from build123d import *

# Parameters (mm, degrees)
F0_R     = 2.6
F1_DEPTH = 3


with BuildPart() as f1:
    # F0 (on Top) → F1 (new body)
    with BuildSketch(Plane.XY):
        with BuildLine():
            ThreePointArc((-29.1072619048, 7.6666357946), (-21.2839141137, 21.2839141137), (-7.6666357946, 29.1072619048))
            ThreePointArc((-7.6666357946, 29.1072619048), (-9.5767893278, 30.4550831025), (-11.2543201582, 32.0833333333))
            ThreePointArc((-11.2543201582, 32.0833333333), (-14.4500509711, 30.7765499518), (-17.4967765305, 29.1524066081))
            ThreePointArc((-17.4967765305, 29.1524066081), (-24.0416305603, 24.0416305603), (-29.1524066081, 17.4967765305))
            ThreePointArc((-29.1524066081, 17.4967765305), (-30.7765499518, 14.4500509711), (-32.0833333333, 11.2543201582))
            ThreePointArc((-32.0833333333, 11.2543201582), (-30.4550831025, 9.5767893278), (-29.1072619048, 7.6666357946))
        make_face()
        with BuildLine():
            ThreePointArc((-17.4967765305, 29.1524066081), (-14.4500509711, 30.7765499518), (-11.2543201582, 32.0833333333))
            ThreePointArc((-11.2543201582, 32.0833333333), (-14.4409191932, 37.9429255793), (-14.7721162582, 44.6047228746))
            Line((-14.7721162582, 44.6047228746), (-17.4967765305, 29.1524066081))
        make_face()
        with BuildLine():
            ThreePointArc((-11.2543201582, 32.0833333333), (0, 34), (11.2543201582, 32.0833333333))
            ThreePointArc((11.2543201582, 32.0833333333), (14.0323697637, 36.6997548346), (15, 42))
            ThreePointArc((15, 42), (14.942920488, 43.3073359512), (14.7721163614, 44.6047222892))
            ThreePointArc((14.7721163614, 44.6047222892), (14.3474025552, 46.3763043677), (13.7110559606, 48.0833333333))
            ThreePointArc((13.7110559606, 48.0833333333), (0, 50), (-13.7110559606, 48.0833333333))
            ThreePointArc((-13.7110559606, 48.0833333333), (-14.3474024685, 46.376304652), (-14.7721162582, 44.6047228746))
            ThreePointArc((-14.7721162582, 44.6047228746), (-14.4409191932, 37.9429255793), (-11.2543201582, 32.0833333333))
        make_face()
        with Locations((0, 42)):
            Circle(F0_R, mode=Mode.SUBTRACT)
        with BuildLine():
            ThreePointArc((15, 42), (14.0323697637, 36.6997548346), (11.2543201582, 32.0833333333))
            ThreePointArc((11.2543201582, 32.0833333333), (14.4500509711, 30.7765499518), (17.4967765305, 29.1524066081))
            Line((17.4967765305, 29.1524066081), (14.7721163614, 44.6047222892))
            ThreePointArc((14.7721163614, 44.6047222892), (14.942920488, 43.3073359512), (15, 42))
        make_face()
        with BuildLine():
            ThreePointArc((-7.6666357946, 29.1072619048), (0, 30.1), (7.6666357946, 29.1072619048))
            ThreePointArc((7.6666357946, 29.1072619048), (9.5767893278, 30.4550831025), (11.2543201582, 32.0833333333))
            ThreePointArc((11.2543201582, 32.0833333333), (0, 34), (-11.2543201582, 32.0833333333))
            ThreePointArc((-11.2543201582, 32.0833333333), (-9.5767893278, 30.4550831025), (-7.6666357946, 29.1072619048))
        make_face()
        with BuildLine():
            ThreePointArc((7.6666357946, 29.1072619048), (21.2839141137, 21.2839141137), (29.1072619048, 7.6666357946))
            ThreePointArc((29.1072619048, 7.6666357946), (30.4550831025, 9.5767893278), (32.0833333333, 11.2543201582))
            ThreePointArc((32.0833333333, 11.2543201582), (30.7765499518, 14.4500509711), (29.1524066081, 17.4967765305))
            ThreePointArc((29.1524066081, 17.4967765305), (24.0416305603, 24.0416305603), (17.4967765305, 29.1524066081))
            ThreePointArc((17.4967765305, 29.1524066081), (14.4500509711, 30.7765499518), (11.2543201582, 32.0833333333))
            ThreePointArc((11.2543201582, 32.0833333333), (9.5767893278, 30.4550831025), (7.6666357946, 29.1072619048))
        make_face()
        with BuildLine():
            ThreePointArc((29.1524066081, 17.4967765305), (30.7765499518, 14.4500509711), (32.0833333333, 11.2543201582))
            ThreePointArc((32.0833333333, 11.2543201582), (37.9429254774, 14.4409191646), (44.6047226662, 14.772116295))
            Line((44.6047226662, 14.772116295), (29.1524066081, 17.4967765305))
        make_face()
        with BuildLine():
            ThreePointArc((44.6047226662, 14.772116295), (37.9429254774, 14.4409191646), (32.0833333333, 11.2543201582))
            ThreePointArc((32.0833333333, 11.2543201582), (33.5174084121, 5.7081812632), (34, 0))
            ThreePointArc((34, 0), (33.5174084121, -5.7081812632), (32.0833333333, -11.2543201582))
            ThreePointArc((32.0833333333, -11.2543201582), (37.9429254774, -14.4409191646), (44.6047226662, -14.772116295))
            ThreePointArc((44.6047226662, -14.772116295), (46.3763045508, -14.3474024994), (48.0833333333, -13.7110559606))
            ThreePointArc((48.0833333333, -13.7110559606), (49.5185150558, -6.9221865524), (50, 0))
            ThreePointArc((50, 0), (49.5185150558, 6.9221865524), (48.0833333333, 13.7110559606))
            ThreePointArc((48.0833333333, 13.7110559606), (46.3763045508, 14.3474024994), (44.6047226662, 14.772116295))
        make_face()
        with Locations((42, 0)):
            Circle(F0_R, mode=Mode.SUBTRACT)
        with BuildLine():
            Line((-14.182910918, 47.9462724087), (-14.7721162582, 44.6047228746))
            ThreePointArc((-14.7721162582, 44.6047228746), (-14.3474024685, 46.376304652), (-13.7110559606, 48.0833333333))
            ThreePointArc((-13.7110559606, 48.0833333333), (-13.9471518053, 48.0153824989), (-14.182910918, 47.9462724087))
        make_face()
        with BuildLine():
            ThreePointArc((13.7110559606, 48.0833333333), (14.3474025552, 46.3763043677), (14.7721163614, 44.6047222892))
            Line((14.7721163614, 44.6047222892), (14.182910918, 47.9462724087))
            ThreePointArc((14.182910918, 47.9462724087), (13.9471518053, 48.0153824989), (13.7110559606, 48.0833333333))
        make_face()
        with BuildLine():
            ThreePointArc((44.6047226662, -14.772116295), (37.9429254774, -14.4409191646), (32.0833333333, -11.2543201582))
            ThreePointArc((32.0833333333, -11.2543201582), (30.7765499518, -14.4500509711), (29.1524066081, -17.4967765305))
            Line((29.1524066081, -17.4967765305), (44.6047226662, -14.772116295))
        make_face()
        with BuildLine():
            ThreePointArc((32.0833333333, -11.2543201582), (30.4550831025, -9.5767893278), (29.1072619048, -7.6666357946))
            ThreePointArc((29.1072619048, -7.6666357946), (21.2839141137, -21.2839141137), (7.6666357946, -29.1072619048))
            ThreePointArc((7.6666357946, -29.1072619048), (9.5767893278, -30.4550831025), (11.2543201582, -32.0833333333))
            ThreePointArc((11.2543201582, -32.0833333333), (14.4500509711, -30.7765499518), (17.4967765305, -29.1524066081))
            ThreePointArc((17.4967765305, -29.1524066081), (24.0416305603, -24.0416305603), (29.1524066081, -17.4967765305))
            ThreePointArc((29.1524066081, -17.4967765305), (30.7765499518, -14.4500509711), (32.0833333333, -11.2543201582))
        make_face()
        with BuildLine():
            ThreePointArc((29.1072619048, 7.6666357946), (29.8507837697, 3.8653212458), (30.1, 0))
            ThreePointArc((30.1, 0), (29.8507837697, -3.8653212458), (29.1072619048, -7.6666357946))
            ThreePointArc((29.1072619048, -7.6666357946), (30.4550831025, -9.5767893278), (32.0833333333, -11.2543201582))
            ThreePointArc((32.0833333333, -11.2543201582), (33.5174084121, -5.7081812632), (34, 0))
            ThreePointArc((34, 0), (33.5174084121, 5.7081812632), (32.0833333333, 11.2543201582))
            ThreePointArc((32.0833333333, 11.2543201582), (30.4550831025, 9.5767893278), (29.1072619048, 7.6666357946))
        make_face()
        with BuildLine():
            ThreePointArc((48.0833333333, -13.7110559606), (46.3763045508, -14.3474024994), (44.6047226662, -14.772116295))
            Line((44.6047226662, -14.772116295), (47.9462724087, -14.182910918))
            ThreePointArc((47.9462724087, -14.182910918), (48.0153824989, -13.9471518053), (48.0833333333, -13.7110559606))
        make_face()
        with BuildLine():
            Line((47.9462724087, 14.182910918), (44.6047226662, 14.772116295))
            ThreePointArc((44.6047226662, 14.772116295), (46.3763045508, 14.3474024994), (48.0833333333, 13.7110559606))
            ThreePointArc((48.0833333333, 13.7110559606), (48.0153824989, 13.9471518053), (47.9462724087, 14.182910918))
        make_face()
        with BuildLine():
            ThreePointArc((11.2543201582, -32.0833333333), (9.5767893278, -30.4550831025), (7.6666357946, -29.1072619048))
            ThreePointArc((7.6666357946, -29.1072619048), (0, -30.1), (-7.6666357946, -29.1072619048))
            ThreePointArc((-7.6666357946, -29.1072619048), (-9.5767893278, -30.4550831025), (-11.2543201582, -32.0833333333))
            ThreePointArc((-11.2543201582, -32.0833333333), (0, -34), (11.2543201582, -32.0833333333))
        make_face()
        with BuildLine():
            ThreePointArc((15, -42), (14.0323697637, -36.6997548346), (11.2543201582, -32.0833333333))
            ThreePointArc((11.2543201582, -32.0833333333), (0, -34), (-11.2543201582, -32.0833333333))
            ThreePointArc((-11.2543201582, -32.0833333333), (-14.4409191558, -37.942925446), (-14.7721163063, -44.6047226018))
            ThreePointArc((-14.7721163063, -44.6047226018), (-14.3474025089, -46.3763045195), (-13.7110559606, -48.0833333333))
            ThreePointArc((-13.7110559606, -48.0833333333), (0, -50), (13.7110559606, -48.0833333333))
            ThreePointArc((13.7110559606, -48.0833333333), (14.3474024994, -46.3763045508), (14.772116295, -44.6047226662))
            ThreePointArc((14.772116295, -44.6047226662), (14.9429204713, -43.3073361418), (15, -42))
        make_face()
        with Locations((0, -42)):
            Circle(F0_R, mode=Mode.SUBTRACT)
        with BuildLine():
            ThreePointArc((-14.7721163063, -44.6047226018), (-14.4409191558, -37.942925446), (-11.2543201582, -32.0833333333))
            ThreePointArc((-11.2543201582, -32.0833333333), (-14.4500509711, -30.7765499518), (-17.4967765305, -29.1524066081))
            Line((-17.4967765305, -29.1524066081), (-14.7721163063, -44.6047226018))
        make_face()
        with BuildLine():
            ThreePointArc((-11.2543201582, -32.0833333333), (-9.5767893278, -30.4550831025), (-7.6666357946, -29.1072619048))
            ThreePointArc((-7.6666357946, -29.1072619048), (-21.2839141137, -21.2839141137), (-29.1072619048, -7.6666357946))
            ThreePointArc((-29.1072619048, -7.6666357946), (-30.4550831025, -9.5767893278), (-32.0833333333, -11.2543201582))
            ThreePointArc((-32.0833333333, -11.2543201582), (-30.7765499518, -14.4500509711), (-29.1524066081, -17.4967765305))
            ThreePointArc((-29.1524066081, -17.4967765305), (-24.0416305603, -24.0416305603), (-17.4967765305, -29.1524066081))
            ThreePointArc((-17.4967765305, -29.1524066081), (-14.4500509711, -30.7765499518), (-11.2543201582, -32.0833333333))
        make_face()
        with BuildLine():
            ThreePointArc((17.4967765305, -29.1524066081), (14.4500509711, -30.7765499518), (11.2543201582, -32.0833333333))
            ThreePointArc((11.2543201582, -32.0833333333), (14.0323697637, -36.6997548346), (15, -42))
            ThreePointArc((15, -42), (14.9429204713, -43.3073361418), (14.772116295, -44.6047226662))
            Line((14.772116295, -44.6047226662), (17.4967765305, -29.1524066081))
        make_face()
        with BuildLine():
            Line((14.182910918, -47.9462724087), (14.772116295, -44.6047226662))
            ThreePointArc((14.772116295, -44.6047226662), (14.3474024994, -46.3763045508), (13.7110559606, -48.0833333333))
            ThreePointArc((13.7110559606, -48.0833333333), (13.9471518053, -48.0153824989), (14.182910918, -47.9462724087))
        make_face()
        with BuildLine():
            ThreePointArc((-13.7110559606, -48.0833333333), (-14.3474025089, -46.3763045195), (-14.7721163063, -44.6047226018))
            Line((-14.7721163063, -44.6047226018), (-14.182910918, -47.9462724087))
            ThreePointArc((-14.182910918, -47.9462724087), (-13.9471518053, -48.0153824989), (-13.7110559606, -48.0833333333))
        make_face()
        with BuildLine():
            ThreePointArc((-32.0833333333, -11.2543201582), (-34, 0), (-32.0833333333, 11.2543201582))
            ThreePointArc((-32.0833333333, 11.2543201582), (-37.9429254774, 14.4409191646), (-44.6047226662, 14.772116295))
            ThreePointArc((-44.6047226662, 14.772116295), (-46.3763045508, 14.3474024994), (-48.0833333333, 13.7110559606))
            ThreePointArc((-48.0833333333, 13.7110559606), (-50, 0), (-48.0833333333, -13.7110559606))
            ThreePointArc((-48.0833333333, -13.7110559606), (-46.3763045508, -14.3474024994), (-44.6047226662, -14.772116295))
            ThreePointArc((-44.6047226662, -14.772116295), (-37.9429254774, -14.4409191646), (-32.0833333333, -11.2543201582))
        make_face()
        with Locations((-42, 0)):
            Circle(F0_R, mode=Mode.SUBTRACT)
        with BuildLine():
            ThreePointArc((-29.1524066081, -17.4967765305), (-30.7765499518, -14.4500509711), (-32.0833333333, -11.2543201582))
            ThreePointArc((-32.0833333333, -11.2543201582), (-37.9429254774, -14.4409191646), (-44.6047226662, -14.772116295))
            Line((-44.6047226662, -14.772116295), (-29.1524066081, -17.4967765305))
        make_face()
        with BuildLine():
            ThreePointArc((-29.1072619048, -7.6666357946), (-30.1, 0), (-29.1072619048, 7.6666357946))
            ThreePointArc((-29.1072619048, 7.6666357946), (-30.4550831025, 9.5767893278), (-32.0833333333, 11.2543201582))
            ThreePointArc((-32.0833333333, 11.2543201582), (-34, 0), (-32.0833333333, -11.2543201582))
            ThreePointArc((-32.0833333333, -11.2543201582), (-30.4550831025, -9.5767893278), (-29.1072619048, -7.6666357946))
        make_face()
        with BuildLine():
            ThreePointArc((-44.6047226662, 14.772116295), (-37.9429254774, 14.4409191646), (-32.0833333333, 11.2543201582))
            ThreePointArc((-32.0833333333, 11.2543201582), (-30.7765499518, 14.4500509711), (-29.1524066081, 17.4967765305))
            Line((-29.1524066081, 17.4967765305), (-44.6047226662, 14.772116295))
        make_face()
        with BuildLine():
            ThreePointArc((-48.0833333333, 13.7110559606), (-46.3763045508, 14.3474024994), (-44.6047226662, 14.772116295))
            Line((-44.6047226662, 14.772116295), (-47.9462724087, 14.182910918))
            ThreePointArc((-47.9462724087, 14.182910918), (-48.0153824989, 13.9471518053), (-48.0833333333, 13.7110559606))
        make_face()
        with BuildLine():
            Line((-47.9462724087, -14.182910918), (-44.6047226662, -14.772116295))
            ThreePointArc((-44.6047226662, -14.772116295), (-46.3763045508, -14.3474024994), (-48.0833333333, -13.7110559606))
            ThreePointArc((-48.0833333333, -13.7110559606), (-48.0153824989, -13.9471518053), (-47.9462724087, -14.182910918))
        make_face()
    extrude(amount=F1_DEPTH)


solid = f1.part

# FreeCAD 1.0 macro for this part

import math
import FreeCAD as App
import Part
import Sketcher
Q = App.Units.Quantity

doc = App.newDocument("Part")
body = doc.addObject("PartDesign::Body", "Body")

# Sketch on XY plane
sketch1 = body.newObject("Sketcher::SketchObject", "Sketch")
sketch1.AttachmentSupport = (doc.getObject("XY_Plane"), [""])
sketch1.MapMode = "FlatFace"
sketch1.addGeometry([
    Part.ArcOfCircle(Part.Circle(App.Vector(0, 0, 0), App.Vector(0, 0, 1), 50), math.radians(164), math.radians(196)),  # 0
    Part.ArcOfCircle(Part.Circle(App.Vector(0, 0, 0), App.Vector(0, 0, 1), 50), math.radians(-164.08), math.radians(-163.52)),  # 1
    Part.LineSegment(App.Vector(-47.95, -14.18, 0), App.Vector(-44.6, -14.77, 0)),  # 2
    Part.LineSegment(App.Vector(-44.6, -14.77, 0), App.Vector(-29.15, -17.5, 0)),  # 3
    Part.ArcOfCircle(Part.Circle(App.Vector(0, 0, 0), App.Vector(0, 0, 1), 34), math.radians(-149), math.radians(-121)),  # 4
    Part.LineSegment(App.Vector(-17.5, -29.15, 0), App.Vector(-14.77, -44.6, 0)),  # 5
    Part.LineSegment(App.Vector(-14.77, -44.6, 0), App.Vector(-14.18, -47.95, 0)),  # 6
    Part.ArcOfCircle(Part.Circle(App.Vector(0, 0, 0), App.Vector(0, 0, 1), 50), math.radians(-106.48), math.radians(-105.92)),  # 7
    Part.ArcOfCircle(Part.Circle(App.Vector(0, 0, 0), App.Vector(0, 0, 1), 50), math.radians(-106), math.radians(-74)),  # 8
    Part.ArcOfCircle(Part.Circle(App.Vector(0, 0, 0), App.Vector(0, 0, 1), 50), math.radians(-74.08), math.radians(-73.52)),  # 9
    Part.LineSegment(App.Vector(14.18, -47.95, 0), App.Vector(14.77, -44.6, 0)),  # 10
    Part.LineSegment(App.Vector(14.77, -44.6, 0), App.Vector(17.5, -29.15, 0)),  # 11
    Part.ArcOfCircle(Part.Circle(App.Vector(0, 0, 0), App.Vector(0, 0, 1), 34), math.radians(-59), math.radians(-31)),  # 12
    Part.LineSegment(App.Vector(29.15, -17.5, 0), App.Vector(44.6, -14.77, 0)),  # 13
    Part.LineSegment(App.Vector(44.6, -14.77, 0), App.Vector(47.95, -14.18, 0)),  # 14
    Part.ArcOfCircle(Part.Circle(App.Vector(0, 0, 0), App.Vector(0, 0, 1), 50), math.radians(-16.48), math.radians(-15.92)),  # 15
    Part.ArcOfCircle(Part.Circle(App.Vector(0, 0, 0), App.Vector(0, 0, 1), 50), math.radians(-15.92), math.radians(0)),  # 16
    Part.ArcOfCircle(Part.Circle(App.Vector(0, 0, 0), App.Vector(0, 0, 1), 50), math.radians(0), math.radians(15.92)),  # 17
    Part.ArcOfCircle(Part.Circle(App.Vector(0, 0, 0), App.Vector(0, 0, 1), 50), math.radians(15.92), math.radians(16.48)),  # 18
    Part.LineSegment(App.Vector(47.95, 14.18, 0), App.Vector(44.6, 14.77, 0)),  # 19
    Part.LineSegment(App.Vector(44.6, 14.77, 0), App.Vector(29.15, 17.5, 0)),  # 20
    Part.ArcOfCircle(Part.Circle(App.Vector(0, 0, 0), App.Vector(0, 0, 1), 34), math.radians(31), math.radians(59)),  # 21
    Part.LineSegment(App.Vector(17.5, 29.15, 0), App.Vector(14.77, 44.6, 0)),  # 22
    Part.LineSegment(App.Vector(14.77, 44.6, 0), App.Vector(14.18, 47.95, 0)),  # 23
    Part.ArcOfCircle(Part.Circle(App.Vector(0, 0, 0), App.Vector(0, 0, 1), 50), math.radians(73.52), math.radians(74.08)),  # 24
    Part.ArcOfCircle(Part.Circle(App.Vector(0, 0, 0), App.Vector(0, 0, 1), 50), math.radians(74), math.radians(106)),  # 25
    Part.ArcOfCircle(Part.Circle(App.Vector(0, 0, 0), App.Vector(0, 0, 1), 50), math.radians(105.92), math.radians(106.48)),  # 26
    Part.LineSegment(App.Vector(-14.18, 47.95, 0), App.Vector(-14.77, 44.6, 0)),  # 27
    Part.LineSegment(App.Vector(-14.77, 44.6, 0), App.Vector(-17.5, 29.15, 0)),  # 28
    Part.ArcOfCircle(Part.Circle(App.Vector(0, 0, 0), App.Vector(0, 0, 1), 34), math.radians(121), math.radians(149)),  # 29
    Part.LineSegment(App.Vector(-29.15, 17.5, 0), App.Vector(-44.6, 14.77, 0)),  # 30
    Part.LineSegment(App.Vector(-44.6, 14.77, 0), App.Vector(-47.95, 14.18, 0)),  # 31
    Part.ArcOfCircle(Part.Circle(App.Vector(0, 0, 0), App.Vector(0, 0, 1), 50), math.radians(163.52), math.radians(164.08)),  # 32
    Part.Circle(App.Vector(0, -42, 0), App.Vector(0, 0, 1), 2.6),  # 33
    Part.Circle(App.Vector(-42, 0, 0), App.Vector(0, 0, 1), 2.6),  # 34
    Part.ArcOfCircle(Part.Circle(App.Vector(0, 0, 0), App.Vector(0, 0, 1), 30.1), math.radians(-165), math.radians(-105)),  # 35
    Part.ArcOfCircle(Part.Circle(App.Vector(0, 0, 0), App.Vector(0, 0, 1), 30.1), math.radians(165), math.radians(195)),  # 36
    Part.ArcOfCircle(Part.Circle(App.Vector(0, 0, 0), App.Vector(0, 0, 1), 30.1), math.radians(105), math.radians(165)),  # 37
    Part.ArcOfCircle(Part.Circle(App.Vector(0, 0, 0), App.Vector(0, 0, 1), 30.1), math.radians(75), math.radians(105)),  # 38
    Part.ArcOfCircle(Part.Circle(App.Vector(0, 0, 0), App.Vector(0, 0, 1), 30.1), math.radians(15), math.radians(75)),  # 39
    Part.ArcOfCircle(Part.Circle(App.Vector(0, 0, 0), App.Vector(0, 0, 1), 30.1), math.radians(0), math.radians(14.76)),  # 40
    Part.ArcOfCircle(Part.Circle(App.Vector(0, 0, 0), App.Vector(0, 0, 1), 30.1), math.radians(-14.76), math.radians(0)),  # 41
    Part.ArcOfCircle(Part.Circle(App.Vector(0, 0, 0), App.Vector(0, 0, 1), 30.1), math.radians(-75), math.radians(-15)),  # 42
    Part.ArcOfCircle(Part.Circle(App.Vector(0, 0, 0), App.Vector(0, 0, 1), 30.1), math.radians(-105), math.radians(-75)),  # 43
    Part.Circle(App.Vector(42, 0, 0), App.Vector(0, 0, 1), 2.6),  # 44
    Part.Circle(App.Vector(0, 42, 0), App.Vector(0, 0, 1), 2.6),  # 45
], False)
sketch1.addConstraint([
    Sketcher.Constraint("Tangent", 0, 2, 1, 1),
    Sketcher.Constraint("Coincident", 1, 2, 2, 1),
    Sketcher.Constraint("Coincident", 2, 2, 3, 1),
    Sketcher.Constraint("Coincident", 3, 2, 4, 1),
    Sketcher.Constraint("Coincident", 4, 2, 5, 1),
    Sketcher.Constraint("Coincident", 5, 2, 6, 1),
    Sketcher.Constraint("Coincident", 6, 2, 7, 1),
    Sketcher.Constraint("Tangent", 7, 2, 8, 1),
    Sketcher.Constraint("Tangent", 8, 2, 9, 1),
    Sketcher.Constraint("Coincident", 9, 2, 10, 1),
    Sketcher.Constraint("Coincident", 10, 2, 11, 1),
    Sketcher.Constraint("Coincident", 11, 2, 12, 1),
    Sketcher.Constraint("Coincident", 12, 2, 13, 1),
    Sketcher.Constraint("Coincident", 13, 2, 14, 1),
    Sketcher.Constraint("Coincident", 14, 2, 15, 1),
    Sketcher.Constraint("Tangent", 15, 2, 16, 1),
    Sketcher.Constraint("Tangent", 16, 2, 17, 1),
    Sketcher.Constraint("Tangent", 17, 2, 18, 1),
    Sketcher.Constraint("Coincident", 18, 2, 19, 1),
    Sketcher.Constraint("Coincident", 19, 2, 20, 1),
    Sketcher.Constraint("Coincident", 20, 2, 21, 1),
    Sketcher.Constraint("Coincident", 21, 2, 22, 1),
    Sketcher.Constraint("Coincident", 22, 2, 23, 1),
    Sketcher.Constraint("Coincident", 23, 2, 24, 1),
    Sketcher.Constraint("Tangent", 24, 2, 25, 1),
    Sketcher.Constraint("Tangent", 25, 2, 26, 1),
    Sketcher.Constraint("Coincident", 26, 2, 27, 1),
    Sketcher.Constraint("Coincident", 27, 2, 28, 1),
    Sketcher.Constraint("Coincident", 28, 2, 29, 1),
    Sketcher.Constraint("Coincident", 29, 2, 30, 1),
    Sketcher.Constraint("Coincident", 30, 2, 31, 1),
    Sketcher.Constraint("Coincident", 31, 2, 32, 1),
    Sketcher.Constraint("Tangent", 32, 2, 0, 1),
    Sketcher.Constraint("Tangent", 35, 1, 36, 2),
    Sketcher.Constraint("Tangent", 36, 1, 37, 2),
    Sketcher.Constraint("Tangent", 37, 1, 38, 2),
    Sketcher.Constraint("Tangent", 38, 1, 39, 2),
    Sketcher.Constraint("Tangent", 39, 1, 40, 2),
    Sketcher.Constraint("Tangent", 40, 1, 41, 2),
    Sketcher.Constraint("Tangent", 41, 1, 42, 2),
    Sketcher.Constraint("Tangent", 42, 1, 43, 2),
    Sketcher.Constraint("Tangent", 43, 1, 35, 2),
    Sketcher.Constraint("Coincident", 0, 3, -1, 1),
    Sketcher.Constraint("Coincident", 4, 3, -1, 1),
    Sketcher.Constraint("Coincident", 7, 3, -1, 1),
    Sketcher.Constraint("Coincident", 9, 3, -1, 1),
    Sketcher.Constraint("Coincident", 12, 3, -1, 1),
    Sketcher.Constraint("Coincident", 15, 3, -1, 1),
    Sketcher.Constraint("Coincident", 17, 3, -1, 1),
    Sketcher.Constraint("Coincident", 21, 3, -1, 1),
    Sketcher.Constraint("Coincident", 24, 3, -1, 1),
    Sketcher.Constraint("Coincident", 26, 3, -1, 1),
    Sketcher.Constraint("Coincident", 29, 3, -1, 1),
    Sketcher.Constraint("Coincident", 35, 3, -1, 1),
    Sketcher.Constraint("Coincident", 37, 3, -1, 1),
    Sketcher.Constraint("Coincident", 39, 3, -1, 1),
    Sketcher.Constraint("Coincident", 41, 3, -1, 1),
    Sketcher.Constraint("Equal", 0, 1),
    Sketcher.Constraint("Equal", 1, 7),
    Sketcher.Constraint("Equal", 4, 12),
    Sketcher.Constraint("Equal", 9, 15),
    Sketcher.Constraint("Equal", 17, 18),
    Sketcher.Constraint("Equal", 12, 21),
    Sketcher.Constraint("Equal", 18, 24),
    Sketcher.Constraint("Equal", 21, 29),
    Sketcher.Constraint("Equal", 26, 32),
    Sketcher.Constraint("Equal", 33, 34),
    Sketcher.Constraint("Equal", 34, 44),
    Sketcher.Constraint("Equal", 44, 45),
    Sketcher.Constraint("Symmetric", 34, 3, 44, 3, -1, 1),
    Sketcher.Constraint("Symmetric", 33, 3, 45, 3, -1, 1),
    Sketcher.Constraint("Symmetric", 2, 2, 19, 2, -1, 1),
    Sketcher.Constraint("Symmetric", 5, 2, 22, 2, -1, 1),
    Sketcher.Constraint("Symmetric", 10, 2, 27, 2, -1, 1),
    Sketcher.Constraint("Symmetric", 13, 2, 30, 2, -1, 1),
    Sketcher.Constraint("Symmetric", 5, 2, 10, 2, -2),
    Sketcher.Constraint("Symmetric", 2, 2, 13, 2, -2),
    Sketcher.Constraint("PointOnObject", 33, 3, -2),
    Sketcher.Constraint("PointOnObject", 34, 3, -1),
    Sketcher.Constraint("PointOnObject", 16, 2, -1),
    Sketcher.Constraint("PointOnObject", 40, 1, -1),
    Sketcher.Constraint("Parallel", 2, 3),
    Sketcher.Constraint("Parallel", 5, 6),
    Sketcher.Constraint("Perpendicular", 3, 10),
    Sketcher.Constraint("Parallel", 10, 11),
    Sketcher.Constraint("Perpendicular", 6, 13),
    Sketcher.Constraint("Parallel", 13, 14),
    Sketcher.Constraint("Perpendicular", 11, 19),
    Sketcher.Constraint("Parallel", 19, 20),
    Sketcher.Constraint("Perpendicular", 14, 22),
    Sketcher.Constraint("Parallel", 22, 23),
    Sketcher.Constraint("Perpendicular", 20, 27),
    Sketcher.Constraint("Parallel", 27, 28),
    Sketcher.Constraint("Perpendicular", 23, 30),
    Sketcher.Constraint("Parallel", 30, 31),
    Sketcher.Constraint("Horizontal", 7, 2, 8, 2),
    Sketcher.Constraint("Horizontal", 6, 2, 9, 2),
    Sketcher.Constraint("Horizontal", 0, 2, 15, 2),
    Sketcher.Constraint("Horizontal", 24, 2, 25, 2),
    Sketcher.Constraint("Horizontal", 17, 2, 32, 2),
    Sketcher.Constraint("Horizontal", 37, 1, 38, 1),
    Sketcher.Constraint("Horizontal", 36, 1, 39, 1),
    Sketcher.Constraint("Horizontal", 35, 1, 41, 1),
    Sketcher.Constraint("Horizontal", 42, 1, 43, 1),
    Sketcher.Constraint("Vertical", 15, 2, 17, 2),
    Sketcher.Constraint("Vertical", 8, 2, 24, 2),
    Sketcher.Constraint("Vertical", 35, 1, 36, 1),
    Sketcher.Constraint("Vertical", 38, 1, 42, 1),
    Sketcher.Constraint("Equal", 3, 5),
    Sketcher.Constraint("Equal", 2, 6),
    Sketcher.Constraint("Radius", 0, 50.0),
    Sketcher.Constraint("Radius", 4, 34.0),
    Sketcher.Constraint("Diameter", 33, 5.2),
    Sketcher.Constraint("Radius", 35, 30.1),
    Sketcher.Constraint("Angle", 2, Q("-10 deg")),
    Sketcher.Constraint("DistanceY", 33, 3, -1, 1, 42.0),
    Sketcher.Constraint("DistanceX", 34, 3, -1, 1, 42.0),
    Sketcher.Constraint("Distance", 2, 3.393099),
    Sketcher.Constraint("DistanceY", 1, 2, -1, 1, 14.182911),
    Sketcher.Constraint("DistanceX", 35, 1, -1, 1, 29.107262),
    Sketcher.Constraint("DistanceY", -1, 1, 37, 1, 29.107262),
    Sketcher.Constraint("DistanceX", 0, 2, -1, 1, 48.083333),
    Sketcher.Constraint("DistanceX", 7, 2, -1, 1, 13.711056),
])
pad1 = body.newObject("PartDesign::Pad", "Pad")
pad1.Profile = sketch1
pad1.Length = 3

doc.recompute()
